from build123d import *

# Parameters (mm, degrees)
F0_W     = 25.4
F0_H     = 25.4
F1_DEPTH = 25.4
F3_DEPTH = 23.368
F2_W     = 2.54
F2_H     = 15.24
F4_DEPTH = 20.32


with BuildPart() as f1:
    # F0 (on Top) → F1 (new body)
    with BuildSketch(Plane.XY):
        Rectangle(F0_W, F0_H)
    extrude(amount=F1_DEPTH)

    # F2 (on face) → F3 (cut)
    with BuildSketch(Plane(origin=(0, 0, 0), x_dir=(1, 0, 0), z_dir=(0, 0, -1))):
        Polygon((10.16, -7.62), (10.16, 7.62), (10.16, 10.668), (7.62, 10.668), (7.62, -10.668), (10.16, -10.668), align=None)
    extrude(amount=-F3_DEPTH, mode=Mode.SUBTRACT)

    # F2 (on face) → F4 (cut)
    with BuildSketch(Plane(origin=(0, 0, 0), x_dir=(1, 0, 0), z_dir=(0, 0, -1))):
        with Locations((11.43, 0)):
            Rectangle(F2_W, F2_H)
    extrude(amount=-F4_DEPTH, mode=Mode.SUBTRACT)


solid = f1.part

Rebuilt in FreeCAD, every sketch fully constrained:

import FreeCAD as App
import Part
import Sketcher
from FreeCAD import Vector
Q = App.Units.Quantity

doc = App.newDocument("Part")
params = doc.addObject("Spreadsheet::Sheet", "Params")
for row, (alias, value) in enumerate([
    ("sketch1_width", "1 in"),
    ("pad1_length", "1 in"),
    ("sketch2_width", "0.1 in"),
    ("sketch2_height", "0.84 in"),
    ("pocket1_length", "0.92 in"),
    ("sketch3_width", "0.1 in"),
    ("sketch3_height", "0.6 in"),
    ("pocket2_length", "0.8 in"),
], start=1):
    params.set(f"A{row}", alias)
    params.set(f"B{row}", "=" + value)
    params.setAlias(f"B{row}", alias)

body = doc.addObject("PartDesign::Body", "Body")

# Sketch on XY plane
sketch1 = body.newObject("Sketcher::SketchObject", "Sketch")
sketch1.AttachmentSupport = (doc.getObject("XY_Plane"), [""])
sketch1.MapMode = "FlatFace"
sketch1.addGeometry([
    Part.LineSegment(Vector(-13, 13, 0), Vector(-13, -13, 0)),
    Part.LineSegment(Vector(-13, -13, 0), Vector(13, -13, 0)),
    Part.LineSegment(Vector(13, -13, 0), Vector(13, 13, 0)),
    Part.LineSegment(Vector(13, 13, 0), Vector(-13, 13, 0)),
], False)
sketch1.addConstraint([
    Sketcher.Constraint("Coincident", 0, 2, 1, 1),
    Sketcher.Constraint("Coincident", 1, 2, 2, 1),
    Sketcher.Constraint("Coincident", 2, 2, 3, 1),
    Sketcher.Constraint("Coincident", 3, 2, 0, 1),
    Sketcher.Constraint("Vertical", 0),
    Sketcher.Constraint("Horizontal", 1),
    Sketcher.Constraint("Vertical", 2),
    Sketcher.Constraint("Horizontal", 3),
    Sketcher.Constraint("Symmetric", 0, 2, 2, 2, -1, 1),
    Sketcher.Constraint("Equal", 3, 0),
    Sketcher.Constraint("DistanceX", 1, 1, 1, 2, Q("1 in")),
])
sketch1.setExpression("Constraints[10]", "Params.sketch1_width")
pad1 = body.newObject("PartDesign::Pad", "Pad")
pad1.Profile = sketch1
pad1.setExpression("Length", "Params.pad1_length")

# Sketch on XY plane
sketch2 = body.newObject("Sketcher::SketchObject", "Sketch001")
sketch2.AttachmentSupport = (doc.getObject("XY_Plane"), [""])
sketch2.MapMode = "FlatFace"
sketch2.addGeometry([
    Part.LineSegment(Vector(10.2, -10.7, 0), Vector(7.6, -10.7, 0)),
    Part.LineSegment(Vector(7.6, -10.7, 0), Vector(7.6, 10.7, 0)),
    Part.LineSegment(Vector(7.6, 10.7, 0), Vector(10.2, 10.7, 0)),
    Part.LineSegment(Vector(10.2, 10.7, 0), Vector(10.2, -10.7, 0)),
], False)
sketch2.addConstraint([
    Sketcher.Constraint("Coincident", 0, 2, 1, 1),
    Sketcher.Constraint("Coincident", 1, 2, 2, 1),
    Sketcher.Constraint("Coincident", 2, 2, 3, 1),
    Sketcher.Constraint("Coincident", 3, 2, 0, 1),
    Sketcher.Constraint("Horizontal", 0),
    Sketcher.Constraint("Vertical", 1),
    Sketcher.Constraint("Horizontal", 2),
    Sketcher.Constraint("Vertical", 3),
    Sketcher.Constraint("DistanceX", 0, 2, 0, 1, Q("0.1 in")),
    Sketcher.Constraint("DistanceY", 1, 1, 1, 2, Q("0.84 in")),
    Sketcher.Constraint("DistanceX", -1, 1, 0, 2, Q("0.3 in")),
    Sketcher.Constraint("DistanceY", 0, 2, -1, 1, Q("0.42 in")),
])
sketch2.setExpression("Constraints[8]", "Params.sketch2_width")
sketch2.setExpression("Constraints[9]", "Params.sketch2_height")
pocket1 = body.newObject("PartDesign::Pocket", "Pocket")
pocket1.Profile = sketch2
pocket1.setExpression("Length", "Params.pocket1_length")
pocket1.Reversed = True

# Sketch on XY plane
sketch3 = body.newObject("Sketcher::SketchObject", "Sketch002")
sketch3.AttachmentSupport = (doc.getObject("XY_Plane"), [""])
sketch3.MapMode = "FlatFace"
sketch3.addGeometry([
    Part.LineSegment(Vector(10.2, -7.6, 0), Vector(10.2, 7.6, 0)),
    Part.LineSegment(Vector(10.2, 7.6, 0), Vector(12.7, 7.6, 0)),
    Part.LineSegment(Vector(12.7, 7.6, 0), Vector(12.7, -7.6, 0)),
    Part.LineSegment(Vector(12.7, -7.6, 0), Vector(10.2, -7.6, 0)),
], False)
sketch3.addConstraint([
    Sketcher.Constraint("Coincident", 0, 2, 1, 1),
    Sketcher.Constraint("Coincident", 1, 2, 2, 1),
    Sketcher.Constraint("Coincident", 2, 2, 3, 1),
    Sketcher.Constraint("Coincident", 3, 2, 0, 1),
    Sketcher.Constraint("Vertical", 0),
    Sketcher.Constraint("Horizontal", 1),
    Sketcher.Constraint("Vertical", 2),
    Sketcher.Constraint("Horizontal", 3),
    Sketcher.Constraint("DistanceX", 1, 1, 1, 2, Q("0.1 in")),
    Sketcher.Constraint("DistanceY", 0, 1, 0, 2, Q("0.6 in")),
    Sketcher.Constraint("DistanceX", -1, 1, 0, 2, Q("0.4 in")),
    Sketcher.Constraint("DistanceY", -1, 1, 0, 2, Q("0.3 in")),
])
sketch3.setExpression("Constraints[8]", "Params.sketch3_width")
sketch3.setExpression("Constraints[9]", "Params.sketch3_height")
pocket2 = body.newObject("PartDesign::Pocket", "Pocket001")
pocket2.Profile = sketch3
pocket2.setExpression("Length", "Params.pocket2_length")
pocket2.Reversed = True

doc.recompute()
